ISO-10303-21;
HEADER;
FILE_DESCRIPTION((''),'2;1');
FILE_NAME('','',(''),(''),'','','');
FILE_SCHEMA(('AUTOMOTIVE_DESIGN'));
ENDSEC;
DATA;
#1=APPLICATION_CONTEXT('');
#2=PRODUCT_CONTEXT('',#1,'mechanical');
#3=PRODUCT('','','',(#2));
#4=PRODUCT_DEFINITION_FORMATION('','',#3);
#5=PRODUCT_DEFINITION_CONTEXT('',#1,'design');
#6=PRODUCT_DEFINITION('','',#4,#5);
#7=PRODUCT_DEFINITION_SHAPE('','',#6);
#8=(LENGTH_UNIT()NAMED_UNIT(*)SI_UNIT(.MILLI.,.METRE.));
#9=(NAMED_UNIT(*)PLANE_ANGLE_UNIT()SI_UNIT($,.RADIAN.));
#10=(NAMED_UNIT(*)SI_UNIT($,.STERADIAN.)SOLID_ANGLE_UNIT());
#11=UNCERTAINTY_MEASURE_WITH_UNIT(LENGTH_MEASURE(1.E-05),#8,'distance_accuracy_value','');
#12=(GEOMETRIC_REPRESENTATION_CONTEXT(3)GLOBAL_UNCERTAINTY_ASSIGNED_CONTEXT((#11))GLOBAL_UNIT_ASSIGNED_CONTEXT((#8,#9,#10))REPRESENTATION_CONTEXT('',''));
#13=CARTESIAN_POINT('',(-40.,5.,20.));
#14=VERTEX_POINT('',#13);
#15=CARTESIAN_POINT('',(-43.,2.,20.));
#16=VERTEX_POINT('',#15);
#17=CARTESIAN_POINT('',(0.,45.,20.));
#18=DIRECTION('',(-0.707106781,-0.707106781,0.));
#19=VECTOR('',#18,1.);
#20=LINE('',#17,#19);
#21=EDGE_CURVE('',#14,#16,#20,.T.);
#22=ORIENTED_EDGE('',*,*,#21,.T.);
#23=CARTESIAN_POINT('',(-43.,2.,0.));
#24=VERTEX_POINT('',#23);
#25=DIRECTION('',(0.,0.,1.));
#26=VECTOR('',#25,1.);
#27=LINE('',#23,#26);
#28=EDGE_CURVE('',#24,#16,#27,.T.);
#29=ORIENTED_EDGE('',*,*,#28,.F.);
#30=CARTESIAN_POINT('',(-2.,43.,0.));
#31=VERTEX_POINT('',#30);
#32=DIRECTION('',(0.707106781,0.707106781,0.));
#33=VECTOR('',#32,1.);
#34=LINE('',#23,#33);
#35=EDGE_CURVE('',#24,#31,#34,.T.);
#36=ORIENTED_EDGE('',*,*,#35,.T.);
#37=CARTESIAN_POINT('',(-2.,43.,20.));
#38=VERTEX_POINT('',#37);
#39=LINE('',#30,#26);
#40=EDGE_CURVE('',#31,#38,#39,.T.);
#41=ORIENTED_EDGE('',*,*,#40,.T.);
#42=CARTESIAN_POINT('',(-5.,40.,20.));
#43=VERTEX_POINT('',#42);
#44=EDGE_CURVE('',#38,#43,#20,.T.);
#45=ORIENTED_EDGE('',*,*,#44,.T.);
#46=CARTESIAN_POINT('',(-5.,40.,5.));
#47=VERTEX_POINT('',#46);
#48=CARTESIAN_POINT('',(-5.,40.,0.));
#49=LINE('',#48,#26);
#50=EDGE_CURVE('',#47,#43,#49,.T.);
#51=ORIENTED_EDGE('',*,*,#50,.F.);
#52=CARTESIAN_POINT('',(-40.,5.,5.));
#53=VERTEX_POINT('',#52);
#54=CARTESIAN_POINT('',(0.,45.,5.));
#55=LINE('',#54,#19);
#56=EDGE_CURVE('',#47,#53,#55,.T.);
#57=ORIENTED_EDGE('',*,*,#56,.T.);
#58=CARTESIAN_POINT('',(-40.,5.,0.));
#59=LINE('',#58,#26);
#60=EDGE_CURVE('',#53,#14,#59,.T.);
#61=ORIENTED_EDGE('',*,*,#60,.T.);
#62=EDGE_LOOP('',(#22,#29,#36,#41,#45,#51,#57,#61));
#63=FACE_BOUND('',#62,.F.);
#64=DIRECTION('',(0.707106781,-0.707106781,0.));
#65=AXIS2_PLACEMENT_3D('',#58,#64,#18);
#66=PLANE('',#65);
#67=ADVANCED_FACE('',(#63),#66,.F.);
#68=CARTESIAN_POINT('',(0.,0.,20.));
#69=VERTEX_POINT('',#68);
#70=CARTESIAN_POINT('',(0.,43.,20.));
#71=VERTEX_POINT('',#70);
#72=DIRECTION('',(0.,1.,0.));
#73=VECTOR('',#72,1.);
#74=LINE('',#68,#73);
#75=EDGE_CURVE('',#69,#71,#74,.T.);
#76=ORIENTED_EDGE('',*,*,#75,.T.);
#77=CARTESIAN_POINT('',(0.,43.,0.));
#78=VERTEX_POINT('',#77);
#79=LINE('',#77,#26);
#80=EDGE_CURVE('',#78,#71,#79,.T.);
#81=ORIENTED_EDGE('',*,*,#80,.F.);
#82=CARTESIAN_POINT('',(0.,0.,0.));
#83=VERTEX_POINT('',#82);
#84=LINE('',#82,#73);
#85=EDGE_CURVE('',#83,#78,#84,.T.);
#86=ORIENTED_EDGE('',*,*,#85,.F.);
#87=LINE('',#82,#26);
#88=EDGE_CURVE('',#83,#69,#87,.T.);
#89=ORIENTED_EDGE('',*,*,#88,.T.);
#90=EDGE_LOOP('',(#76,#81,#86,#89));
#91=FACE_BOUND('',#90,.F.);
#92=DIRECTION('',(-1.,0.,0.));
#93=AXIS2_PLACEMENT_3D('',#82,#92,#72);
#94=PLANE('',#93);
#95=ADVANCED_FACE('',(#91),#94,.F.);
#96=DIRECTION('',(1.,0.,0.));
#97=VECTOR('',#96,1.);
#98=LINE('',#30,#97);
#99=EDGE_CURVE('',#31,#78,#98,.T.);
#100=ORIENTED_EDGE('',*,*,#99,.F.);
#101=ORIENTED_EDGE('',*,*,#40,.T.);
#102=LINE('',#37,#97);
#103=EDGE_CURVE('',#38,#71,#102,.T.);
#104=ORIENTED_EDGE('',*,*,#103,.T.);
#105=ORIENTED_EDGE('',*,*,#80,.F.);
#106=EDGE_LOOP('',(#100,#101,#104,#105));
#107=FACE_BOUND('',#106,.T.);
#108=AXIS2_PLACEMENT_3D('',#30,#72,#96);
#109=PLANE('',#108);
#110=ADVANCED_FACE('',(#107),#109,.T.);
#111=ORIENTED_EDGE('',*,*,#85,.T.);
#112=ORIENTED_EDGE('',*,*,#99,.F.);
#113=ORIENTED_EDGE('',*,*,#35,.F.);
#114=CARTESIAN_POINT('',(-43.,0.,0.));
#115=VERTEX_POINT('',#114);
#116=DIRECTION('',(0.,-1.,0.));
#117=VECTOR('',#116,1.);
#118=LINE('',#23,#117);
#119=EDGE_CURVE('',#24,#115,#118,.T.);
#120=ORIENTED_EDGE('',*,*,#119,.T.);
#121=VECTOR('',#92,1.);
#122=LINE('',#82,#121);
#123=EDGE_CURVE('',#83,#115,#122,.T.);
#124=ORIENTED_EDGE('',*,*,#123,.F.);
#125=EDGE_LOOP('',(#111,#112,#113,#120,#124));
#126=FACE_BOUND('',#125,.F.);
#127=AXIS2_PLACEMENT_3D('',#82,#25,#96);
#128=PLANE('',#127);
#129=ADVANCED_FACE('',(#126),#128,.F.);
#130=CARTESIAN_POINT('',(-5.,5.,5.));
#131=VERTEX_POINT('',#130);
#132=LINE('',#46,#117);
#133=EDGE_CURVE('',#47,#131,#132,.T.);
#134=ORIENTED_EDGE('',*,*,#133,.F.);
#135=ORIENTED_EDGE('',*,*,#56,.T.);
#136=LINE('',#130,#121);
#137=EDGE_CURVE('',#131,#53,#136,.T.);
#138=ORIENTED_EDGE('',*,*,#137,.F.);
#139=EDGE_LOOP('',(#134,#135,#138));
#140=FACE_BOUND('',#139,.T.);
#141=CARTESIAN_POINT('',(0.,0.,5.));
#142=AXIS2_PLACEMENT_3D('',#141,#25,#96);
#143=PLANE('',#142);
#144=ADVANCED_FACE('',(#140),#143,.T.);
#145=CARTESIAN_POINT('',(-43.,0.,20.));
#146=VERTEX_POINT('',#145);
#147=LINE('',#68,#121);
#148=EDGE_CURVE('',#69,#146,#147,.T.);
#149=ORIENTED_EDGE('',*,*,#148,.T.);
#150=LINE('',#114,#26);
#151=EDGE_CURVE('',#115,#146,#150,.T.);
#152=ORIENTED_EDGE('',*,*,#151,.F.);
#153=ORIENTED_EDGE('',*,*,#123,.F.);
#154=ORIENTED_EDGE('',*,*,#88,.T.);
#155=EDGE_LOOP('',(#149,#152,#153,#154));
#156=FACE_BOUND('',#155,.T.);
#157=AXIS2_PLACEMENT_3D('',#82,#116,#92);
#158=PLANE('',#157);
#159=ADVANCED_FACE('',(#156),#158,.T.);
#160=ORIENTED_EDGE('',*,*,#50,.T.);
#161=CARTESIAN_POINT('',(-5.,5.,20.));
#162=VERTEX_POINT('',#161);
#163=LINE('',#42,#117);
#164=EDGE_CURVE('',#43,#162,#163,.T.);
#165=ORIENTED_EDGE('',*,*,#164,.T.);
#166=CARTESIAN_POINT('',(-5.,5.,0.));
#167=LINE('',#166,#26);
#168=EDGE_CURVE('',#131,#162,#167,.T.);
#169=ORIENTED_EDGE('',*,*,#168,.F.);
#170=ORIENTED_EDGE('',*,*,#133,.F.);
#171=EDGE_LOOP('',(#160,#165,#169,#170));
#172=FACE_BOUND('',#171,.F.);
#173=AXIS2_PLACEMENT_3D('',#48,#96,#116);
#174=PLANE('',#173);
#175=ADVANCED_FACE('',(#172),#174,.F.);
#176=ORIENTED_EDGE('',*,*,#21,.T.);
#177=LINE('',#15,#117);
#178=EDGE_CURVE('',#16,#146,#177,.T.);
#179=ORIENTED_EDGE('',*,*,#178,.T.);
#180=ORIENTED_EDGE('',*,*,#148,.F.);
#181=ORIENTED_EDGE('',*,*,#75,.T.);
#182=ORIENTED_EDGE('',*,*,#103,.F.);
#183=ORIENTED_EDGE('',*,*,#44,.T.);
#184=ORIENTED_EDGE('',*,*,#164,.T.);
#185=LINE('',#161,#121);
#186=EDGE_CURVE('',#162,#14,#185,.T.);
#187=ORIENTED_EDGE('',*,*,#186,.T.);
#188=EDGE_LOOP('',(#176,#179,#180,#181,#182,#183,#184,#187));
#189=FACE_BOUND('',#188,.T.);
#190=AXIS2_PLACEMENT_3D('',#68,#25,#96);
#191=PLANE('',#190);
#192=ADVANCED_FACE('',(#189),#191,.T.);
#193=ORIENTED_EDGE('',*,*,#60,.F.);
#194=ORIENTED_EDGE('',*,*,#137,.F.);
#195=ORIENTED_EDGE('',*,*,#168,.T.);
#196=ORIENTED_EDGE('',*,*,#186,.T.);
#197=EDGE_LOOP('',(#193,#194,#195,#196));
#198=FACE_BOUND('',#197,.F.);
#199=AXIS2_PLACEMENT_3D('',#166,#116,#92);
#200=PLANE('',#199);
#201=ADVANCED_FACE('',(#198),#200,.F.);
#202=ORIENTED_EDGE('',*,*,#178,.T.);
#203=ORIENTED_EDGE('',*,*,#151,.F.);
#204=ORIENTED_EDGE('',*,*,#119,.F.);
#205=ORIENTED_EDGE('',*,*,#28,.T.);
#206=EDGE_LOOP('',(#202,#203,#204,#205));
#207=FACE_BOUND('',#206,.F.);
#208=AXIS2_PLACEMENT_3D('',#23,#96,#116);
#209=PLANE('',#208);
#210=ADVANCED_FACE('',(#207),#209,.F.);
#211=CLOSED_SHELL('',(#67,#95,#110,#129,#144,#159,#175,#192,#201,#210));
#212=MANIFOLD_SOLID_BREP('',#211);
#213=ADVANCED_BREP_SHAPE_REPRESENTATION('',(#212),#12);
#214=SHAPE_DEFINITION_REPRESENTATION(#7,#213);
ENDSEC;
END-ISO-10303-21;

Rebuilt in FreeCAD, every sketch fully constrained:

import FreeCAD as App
import Part
import Sketcher


def add_polygon(sketch, points):
    """Adds a closed chain of lines whose ends are joined by coincident constraints."""
    first, n = sketch.GeometryCount, len(points)
    for a, b in zip(points, points[1:] + points[:1]):
        sketch.addGeometry(Part.LineSegment(App.Vector(*a, 0), App.Vector(*b, 0)), False)
    for i in range(n):
        sketch.addConstraint(Sketcher.Constraint("Coincident", first + i, 2, first + (i + 1) % n, 1))

doc = App.newDocument("Part")
body = doc.addObject("PartDesign::Body", "Body")

# Sketch on XY plane
sketch1 = body.newObject("Sketcher::SketchObject", "Sketch")
sketch1.AttachmentSupport = (doc.getObject("XY_Plane"), [""])
sketch1.MapMode = "FlatFace"
add_polygon(sketch1, [(-43, 0), (0, 0), (0, 43), (-2, 43), (-5, 40), (-5, 5), (-40, 5), (-43, 2)])  # lines 0-7
sketch1.addConstraint(Sketcher.Constraint("Horizontal", 0))
sketch1.addConstraint(Sketcher.Constraint("Vertical", 1))
sketch1.addConstraint(Sketcher.Constraint("Horizontal", 2))
sketch1.addConstraint(Sketcher.Constraint("Vertical", 4))
sketch1.addConstraint(Sketcher.Constraint("Horizontal", 5))
sketch1.addConstraint(Sketcher.Constraint("Vertical", 7))
sketch1.addConstraint(Sketcher.Constraint("Coincident", 0, 2, -1, 1))
sketch1.addConstraint(Sketcher.Constraint("Parallel", 3, 6))
sketch1.addConstraint(Sketcher.Constraint("Equal", 0, 1))
sketch1.addConstraint(Sketcher.Constraint("Equal", 5, 4))
sketch1.addConstraint(Sketcher.Constraint("Equal", 2, 7))
sketch1.addConstraint(Sketcher.Constraint("Equal", 3, 6))
sketch1.addConstraint(Sketcher.Constraint("DistanceX", 2, 2, 2, 1, 2.0))
sketch1.addConstraint(Sketcher.Constraint("DistanceX", 3, 2, -1, 1, 5.0))
sketch1.addConstraint(Sketcher.Constraint("DistanceX", 0, 1, 0, 2, 43.0))
pad1 = body.newObject("PartDesign::Pad", "Pad")
pad1.Profile = sketch1
pad1.Length = 20

# Sketch on XY plane
sketch2 = body.newObject("Sketcher::SketchObject", "Sketch001")
sketch2.AttachmentSupport = (doc.getObject("XY_Plane"), [""])
sketch2.MapMode = "FlatFace"
add_polygon(sketch2, [(-5, 40), (-40, 5), (-5, 5)])  # lines 0-2
sketch2.addConstraint(Sketcher.Constraint("Horizontal", 1))
sketch2.addConstraint(Sketcher.Constraint("Vertical", 2))
sketch2.addConstraint(Sketcher.Constraint("Equal", 1, 2))
sketch2.addConstraint(Sketcher.Constraint("DistanceY", -1, 1, 0, 2, 5.0))
sketch2.addConstraint(Sketcher.Constraint("DistanceX", 1, 2, -1, 1, 5.0))
sketch2.addConstraint(Sketcher.Constraint("DistanceX", 1, 1, 1, 2, 35.0))
pad2 = body.newObject("PartDesign::Pad", "Pad001")
pad2.Profile = sketch2
pad2.Length = 5

doc.recompute()
